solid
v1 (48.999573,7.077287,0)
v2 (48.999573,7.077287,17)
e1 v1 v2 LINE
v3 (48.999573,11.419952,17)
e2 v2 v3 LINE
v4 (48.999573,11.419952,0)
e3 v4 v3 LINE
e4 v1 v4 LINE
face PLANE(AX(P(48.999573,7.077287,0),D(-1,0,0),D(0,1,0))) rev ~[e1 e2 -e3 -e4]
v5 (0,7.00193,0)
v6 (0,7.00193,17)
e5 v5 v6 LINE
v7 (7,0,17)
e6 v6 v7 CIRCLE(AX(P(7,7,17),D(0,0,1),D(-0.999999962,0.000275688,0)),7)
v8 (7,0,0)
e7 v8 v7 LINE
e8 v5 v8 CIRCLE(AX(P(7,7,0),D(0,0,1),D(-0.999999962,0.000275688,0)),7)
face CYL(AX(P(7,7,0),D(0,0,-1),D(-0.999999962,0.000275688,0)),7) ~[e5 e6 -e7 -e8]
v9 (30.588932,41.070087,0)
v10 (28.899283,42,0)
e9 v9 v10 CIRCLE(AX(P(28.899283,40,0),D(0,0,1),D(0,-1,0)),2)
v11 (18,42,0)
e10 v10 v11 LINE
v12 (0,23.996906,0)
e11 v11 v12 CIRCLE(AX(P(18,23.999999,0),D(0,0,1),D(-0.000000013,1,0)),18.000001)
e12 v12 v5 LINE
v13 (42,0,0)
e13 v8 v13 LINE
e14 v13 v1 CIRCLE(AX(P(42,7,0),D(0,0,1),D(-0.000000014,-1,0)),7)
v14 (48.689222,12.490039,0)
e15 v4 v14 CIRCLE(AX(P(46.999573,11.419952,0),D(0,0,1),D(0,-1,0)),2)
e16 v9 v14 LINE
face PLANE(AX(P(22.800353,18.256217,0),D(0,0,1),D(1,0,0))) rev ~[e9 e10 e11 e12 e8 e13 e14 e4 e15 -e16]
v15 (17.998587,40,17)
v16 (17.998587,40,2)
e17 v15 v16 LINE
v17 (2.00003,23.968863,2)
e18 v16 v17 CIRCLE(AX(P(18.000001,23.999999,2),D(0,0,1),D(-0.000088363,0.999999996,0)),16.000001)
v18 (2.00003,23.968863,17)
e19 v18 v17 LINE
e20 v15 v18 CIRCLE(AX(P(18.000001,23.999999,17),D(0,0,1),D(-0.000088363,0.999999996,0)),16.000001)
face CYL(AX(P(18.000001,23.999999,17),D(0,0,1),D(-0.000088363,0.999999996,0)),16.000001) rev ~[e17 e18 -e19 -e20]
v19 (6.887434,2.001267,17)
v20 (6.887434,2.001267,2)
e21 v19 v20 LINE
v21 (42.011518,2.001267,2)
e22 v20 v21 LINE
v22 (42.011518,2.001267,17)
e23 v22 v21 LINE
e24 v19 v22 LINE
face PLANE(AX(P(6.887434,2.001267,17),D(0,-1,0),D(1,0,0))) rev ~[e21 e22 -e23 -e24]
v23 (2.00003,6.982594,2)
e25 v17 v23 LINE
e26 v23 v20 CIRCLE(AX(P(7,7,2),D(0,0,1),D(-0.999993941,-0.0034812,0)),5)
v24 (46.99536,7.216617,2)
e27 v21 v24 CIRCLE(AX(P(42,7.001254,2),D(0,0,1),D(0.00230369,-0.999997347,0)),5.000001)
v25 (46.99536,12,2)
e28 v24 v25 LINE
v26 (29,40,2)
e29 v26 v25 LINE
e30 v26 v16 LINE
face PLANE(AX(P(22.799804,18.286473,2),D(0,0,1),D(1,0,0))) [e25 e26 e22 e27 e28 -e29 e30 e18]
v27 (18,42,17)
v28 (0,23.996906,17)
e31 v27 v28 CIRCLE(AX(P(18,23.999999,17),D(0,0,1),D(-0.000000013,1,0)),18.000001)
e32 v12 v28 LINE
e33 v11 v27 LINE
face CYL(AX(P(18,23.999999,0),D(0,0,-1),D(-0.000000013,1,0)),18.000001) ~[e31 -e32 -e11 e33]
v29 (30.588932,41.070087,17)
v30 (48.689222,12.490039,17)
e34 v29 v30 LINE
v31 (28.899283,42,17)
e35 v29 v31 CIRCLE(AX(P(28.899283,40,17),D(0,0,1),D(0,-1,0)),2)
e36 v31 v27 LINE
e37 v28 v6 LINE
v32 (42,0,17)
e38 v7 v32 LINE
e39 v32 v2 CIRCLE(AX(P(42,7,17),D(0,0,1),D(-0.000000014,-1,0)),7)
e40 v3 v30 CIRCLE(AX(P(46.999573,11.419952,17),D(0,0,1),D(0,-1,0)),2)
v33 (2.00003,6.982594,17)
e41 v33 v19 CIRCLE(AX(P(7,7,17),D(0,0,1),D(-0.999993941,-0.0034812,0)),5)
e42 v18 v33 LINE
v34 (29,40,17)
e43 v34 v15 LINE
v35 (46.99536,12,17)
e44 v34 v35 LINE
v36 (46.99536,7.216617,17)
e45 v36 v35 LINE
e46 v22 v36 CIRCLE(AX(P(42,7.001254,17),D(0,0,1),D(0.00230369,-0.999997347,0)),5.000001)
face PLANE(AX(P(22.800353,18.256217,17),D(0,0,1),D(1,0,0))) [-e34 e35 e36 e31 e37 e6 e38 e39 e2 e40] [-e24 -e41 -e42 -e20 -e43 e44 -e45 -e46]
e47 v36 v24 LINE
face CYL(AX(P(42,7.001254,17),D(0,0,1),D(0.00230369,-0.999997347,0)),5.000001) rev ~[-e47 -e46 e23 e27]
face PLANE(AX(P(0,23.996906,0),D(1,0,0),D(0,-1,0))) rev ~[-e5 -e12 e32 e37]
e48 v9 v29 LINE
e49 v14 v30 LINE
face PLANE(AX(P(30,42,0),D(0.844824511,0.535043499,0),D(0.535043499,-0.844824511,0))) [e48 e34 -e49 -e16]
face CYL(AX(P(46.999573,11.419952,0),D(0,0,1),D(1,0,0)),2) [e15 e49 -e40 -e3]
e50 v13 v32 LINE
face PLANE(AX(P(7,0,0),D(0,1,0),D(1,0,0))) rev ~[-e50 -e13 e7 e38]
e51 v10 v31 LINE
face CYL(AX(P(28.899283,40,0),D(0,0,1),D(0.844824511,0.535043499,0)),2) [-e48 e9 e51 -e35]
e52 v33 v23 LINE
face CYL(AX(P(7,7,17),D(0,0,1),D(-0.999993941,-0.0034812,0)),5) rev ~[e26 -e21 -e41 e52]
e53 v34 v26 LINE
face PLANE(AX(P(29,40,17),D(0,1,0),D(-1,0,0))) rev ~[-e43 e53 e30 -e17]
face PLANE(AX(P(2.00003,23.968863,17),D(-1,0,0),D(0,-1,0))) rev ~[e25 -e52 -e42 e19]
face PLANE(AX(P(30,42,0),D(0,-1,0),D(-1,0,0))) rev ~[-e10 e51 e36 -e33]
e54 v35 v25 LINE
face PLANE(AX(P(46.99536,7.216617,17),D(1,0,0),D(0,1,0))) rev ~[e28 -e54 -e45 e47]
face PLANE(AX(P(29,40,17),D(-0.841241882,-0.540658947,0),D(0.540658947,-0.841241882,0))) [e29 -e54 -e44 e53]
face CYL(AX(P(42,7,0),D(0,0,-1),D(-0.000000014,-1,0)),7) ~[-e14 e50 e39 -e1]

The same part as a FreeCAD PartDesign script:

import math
import FreeCAD as App
import Part
import Sketcher
Q = App.Units.Quantity


def edges_at(feature, points):
    """Names of the edges that pass closest to the given points."""
    edges = feature.Shape.Edges
    near = lambda p: min(range(len(edges)), key=lambda i: edges[i].distToShape(Part.Vertex(*p))[0])
    return sorted({f"Edge{near(p) + 1}" for p in points})

doc = App.newDocument("Part")
body = doc.addObject("PartDesign::Body", "Body")

# Sketch on XY plane
sketch1 = body.newObject("Sketcher::SketchObject", "Sketch")
sketch1.AttachmentSupport = (doc.getObject("XY_Plane"), [""])
sketch1.MapMode = "FlatFace"
sketch1.addGeometry(Part.LineSegment(App.Vector(7, 0, 0), App.Vector(42, 0, 0)), False)
sketch1.addGeometry(Part.ArcOfCircle(Part.Circle(App.Vector(42, 7, 0), App.Vector(0, 0, 1), 7), math.radians(-90), math.radians(1)), False)
sketch1.addGeometry(Part.LineSegment(App.Vector(49, 7.1, 0), App.Vector(49, 12, 0)), False)
sketch1.addGeometry(Part.LineSegment(App.Vector(49, 12, 0), App.Vector(30, 42, 0)), False)
sketch1.addGeometry(Part.LineSegment(App.Vector(30, 42, 0), App.Vector(18, 42, 0)), False)
sketch1.addGeometry(Part.ArcOfCircle(Part.Circle(App.Vector(18, 24, 0), App.Vector(0, 0, 1), 18), math.radians(90), math.radians(180)), False)
sketch1.addGeometry(Part.LineSegment(App.Vector(0, 24, 0), App.Vector(0, 7, 0)), False)
sketch1.addGeometry(Part.ArcOfCircle(Part.Circle(App.Vector(7, 7, 0), App.Vector(0, 0, 1), 7), math.radians(180), math.radians(270)), False)
sketch1.addConstraint(Sketcher.Constraint("Tangent", 0, 2, 1, 1))
sketch1.addConstraint(Sketcher.Constraint("Coincident", 1, 2, 2, 1))
sketch1.addConstraint(Sketcher.Constraint("Coincident", 2, 2, 3, 1))
sketch1.addConstraint(Sketcher.Constraint("Coincident", 3, 2, 4, 1))
sketch1.addConstraint(Sketcher.Constraint("Tangent", 4, 2, 5, 1))
sketch1.addConstraint(Sketcher.Constraint("Coincident", 5, 2, 6, 1))
sketch1.addConstraint(Sketcher.Constraint("Coincident", 6, 2, 7, 1))
sketch1.addConstraint(Sketcher.Constraint("Tangent", 7, 2, 0, 1))
sketch1.addConstraint(Sketcher.Constraint("Horizontal", 0))
sketch1.addConstraint(Sketcher.Constraint("Vertical", 2))
sketch1.addConstraint(Sketcher.Constraint("Horizontal", 4))
sketch1.addConstraint(Sketcher.Constraint("Vertical", 6))
sketch1.addConstraint(Sketcher.Constraint("Equal", 1, 7))
sketch1.addConstraint(Sketcher.Constraint("PointOnObject", 0, 2, -1))
sketch1.addConstraint(Sketcher.Constraint("PointOnObject", 5, 2, -2))
sketch1.addConstraint(Sketcher.Constraint("Radius", 1, Q("7 mm")))
sketch1.addConstraint(Sketcher.Constraint("Radius", 5, Q("18.000001 mm")))
sketch1.addConstraint(Sketcher.Constraint("DistanceX", 0, 1, 0, 2, Q("35 mm")))
sketch1.addConstraint(Sketcher.Constraint("DistanceX", 4, 2, 4, 1, Q("12 mm")))
sketch1.addConstraint(Sketcher.Constraint("DistanceY", -1, 1, 5, 3, Q("23.999999 mm")))
sketch1.addConstraint(Sketcher.Constraint("DistanceY", -1, 1, 2, 2, Q("12 mm")))
sketch1.addConstraint(Sketcher.Constraint("DistanceY", 2, 1, 2, 2, Q("4.922713 mm")))
sketch1.addConstraint(Sketcher.Constraint("DistanceY", 6, 2, 6, 1, Q("16.994976 mm")))
sketch1.addConstraint(Sketcher.Constraint("DistanceY", -1, 1, 6, 2, Q("7.00193 mm")))
pad1 = body.newObject("PartDesign::Pad", "Pad")
pad1.Profile = sketch1
pad1.Length = 17

# Sketch on XY plane
sketch2 = body.newObject("Sketcher::SketchObject", "Sketch001")
sketch2.AttachmentSupport = (doc.getObject("XY_Plane"), [""])
sketch2.MapMode = "FlatFace"
sketch2.AttachmentOffset = App.Placement(App.Vector(0, 0, 17), App.Rotation())
sketch2.addGeometry(Part.LineSegment(App.Vector(6.887434, 2.001267, 0), App.Vector(42.011518, 2.001267, 0)), False)
sketch2.addGeometry(Part.ArcOfCircle(Part.Circle(App.Vector(42, 7.001254, 0), App.Vector(0, 0, 1), 5.000001), math.radians(-89.868008), math.radians(2.468636)), False)
sketch2.addGeometry(Part.LineSegment(App.Vector(46.99536, 7.216617, 0), App.Vector(46.99536, 12, 0)), False)
sketch2.addGeometry(Part.LineSegment(App.Vector(46.99536, 12, 0), App.Vector(29, 40, 0)), False)
sketch2.addGeometry(Part.LineSegment(App.Vector(29, 40, 0), App.Vector(17.998587, 40, 0)), False)
sketch2.addGeometry(Part.ArcOfCircle(Part.Circle(App.Vector(18.000001, 23.999999, 0), App.Vector(0, 0, 1), 16.000001), math.radians(90.005063), math.radians(180.111497)), False)
sketch2.addGeometry(Part.LineSegment(App.Vector(2.00003, 23.968863, 0), App.Vector(2.00003, 6.982594, 0)), False)
sketch2.addGeometry(Part.ArcOfCircle(Part.Circle(App.Vector(7, 7, 0), App.Vector(0, 0, 1), 5), math.radians(-179.800542), math.radians(-91.29002)), False)
sketch2.addConstraint(Sketcher.Constraint("Coincident", 0, 2, 1, 1))
sketch2.addConstraint(Sketcher.Constraint("Coincident", 1, 2, 2, 1))
sketch2.addConstraint(Sketcher.Constraint("Coincident", 2, 2, 3, 1))
sketch2.addConstraint(Sketcher.Constraint("Coincident", 3, 2, 4, 1))
sketch2.addConstraint(Sketcher.Constraint("Coincident", 4, 2, 5, 1))
sketch2.addConstraint(Sketcher.Constraint("Coincident", 5, 2, 6, 1))
sketch2.addConstraint(Sketcher.Constraint("Coincident", 6, 2, 7, 1))
sketch2.addConstraint(Sketcher.Constraint("Coincident", 7, 2, 0, 1))
sketch2.addConstraint(Sketcher.Constraint("Horizontal", 0))
sketch2.addConstraint(Sketcher.Constraint("Vertical", 2))
sketch2.addConstraint(Sketcher.Constraint("Horizontal", 4))
sketch2.addConstraint(Sketcher.Constraint("Vertical", 6))
sketch2.addConstraint(Sketcher.Constraint("Radius", 1, Q("5.000001 mm")))
sketch2.addConstraint(Sketcher.Constraint("Radius", 5, Q("16.000001 mm")))
sketch2.addConstraint(Sketcher.Constraint("Radius", 7, Q("5 mm")))
sketch2.addConstraint(Sketcher.Constraint("DistanceX", -1, 1, 1, 3, Q("42 mm")))
sketch2.addConstraint(Sketcher.Constraint("DistanceX", -1, 1, 5, 3, Q("18.000001 mm")))
sketch2.addConstraint(Sketcher.Constraint("DistanceY", -1, 1, 5, 3, Q("23.999999 mm")))
sketch2.addConstraint(Sketcher.Constraint("DistanceX", -1, 1, 7, 3, Q("7 mm")))
sketch2.addConstraint(Sketcher.Constraint("DistanceY", -1, 1, 7, 3, Q("7 mm")))
sketch2.addConstraint(Sketcher.Constraint("DistanceY", -1, 1, 2, 2, Q("12 mm")))
sketch2.addConstraint(Sketcher.Constraint("DistanceX", -1, 1, 3, 2, Q("29 mm")))
sketch2.addConstraint(Sketcher.Constraint("DistanceY", 6, 2, 6, 1, Q("16.986269 mm")))
sketch2.addConstraint(Sketcher.Constraint("DistanceX", 0, 1, 0, 2, Q("35.124084 mm")))
sketch2.addConstraint(Sketcher.Constraint("DistanceX", 4, 2, 4, 1, Q("11.001413 mm")))
sketch2.addConstraint(Sketcher.Constraint("DistanceY", 2, 1, 2, 2, Q("4.783383 mm")))
sketch2.addConstraint(Sketcher.Constraint("DistanceX", -1, 1, 0, 2, Q("42.011518 mm")))
pocket1 = body.newObject("PartDesign::Pocket", "Pocket")
pocket1.Profile = sketch2
pocket1.Length = 15
doc.recompute()

fillet = body.newObject("PartDesign::Fillet", "Fillet")
fillet.Base = (pocket1, edges_at(pocket1, [(49, 12, 8.5), (30, 42, 8.5)]))
fillet.Radius = 2

doc.recompute()
